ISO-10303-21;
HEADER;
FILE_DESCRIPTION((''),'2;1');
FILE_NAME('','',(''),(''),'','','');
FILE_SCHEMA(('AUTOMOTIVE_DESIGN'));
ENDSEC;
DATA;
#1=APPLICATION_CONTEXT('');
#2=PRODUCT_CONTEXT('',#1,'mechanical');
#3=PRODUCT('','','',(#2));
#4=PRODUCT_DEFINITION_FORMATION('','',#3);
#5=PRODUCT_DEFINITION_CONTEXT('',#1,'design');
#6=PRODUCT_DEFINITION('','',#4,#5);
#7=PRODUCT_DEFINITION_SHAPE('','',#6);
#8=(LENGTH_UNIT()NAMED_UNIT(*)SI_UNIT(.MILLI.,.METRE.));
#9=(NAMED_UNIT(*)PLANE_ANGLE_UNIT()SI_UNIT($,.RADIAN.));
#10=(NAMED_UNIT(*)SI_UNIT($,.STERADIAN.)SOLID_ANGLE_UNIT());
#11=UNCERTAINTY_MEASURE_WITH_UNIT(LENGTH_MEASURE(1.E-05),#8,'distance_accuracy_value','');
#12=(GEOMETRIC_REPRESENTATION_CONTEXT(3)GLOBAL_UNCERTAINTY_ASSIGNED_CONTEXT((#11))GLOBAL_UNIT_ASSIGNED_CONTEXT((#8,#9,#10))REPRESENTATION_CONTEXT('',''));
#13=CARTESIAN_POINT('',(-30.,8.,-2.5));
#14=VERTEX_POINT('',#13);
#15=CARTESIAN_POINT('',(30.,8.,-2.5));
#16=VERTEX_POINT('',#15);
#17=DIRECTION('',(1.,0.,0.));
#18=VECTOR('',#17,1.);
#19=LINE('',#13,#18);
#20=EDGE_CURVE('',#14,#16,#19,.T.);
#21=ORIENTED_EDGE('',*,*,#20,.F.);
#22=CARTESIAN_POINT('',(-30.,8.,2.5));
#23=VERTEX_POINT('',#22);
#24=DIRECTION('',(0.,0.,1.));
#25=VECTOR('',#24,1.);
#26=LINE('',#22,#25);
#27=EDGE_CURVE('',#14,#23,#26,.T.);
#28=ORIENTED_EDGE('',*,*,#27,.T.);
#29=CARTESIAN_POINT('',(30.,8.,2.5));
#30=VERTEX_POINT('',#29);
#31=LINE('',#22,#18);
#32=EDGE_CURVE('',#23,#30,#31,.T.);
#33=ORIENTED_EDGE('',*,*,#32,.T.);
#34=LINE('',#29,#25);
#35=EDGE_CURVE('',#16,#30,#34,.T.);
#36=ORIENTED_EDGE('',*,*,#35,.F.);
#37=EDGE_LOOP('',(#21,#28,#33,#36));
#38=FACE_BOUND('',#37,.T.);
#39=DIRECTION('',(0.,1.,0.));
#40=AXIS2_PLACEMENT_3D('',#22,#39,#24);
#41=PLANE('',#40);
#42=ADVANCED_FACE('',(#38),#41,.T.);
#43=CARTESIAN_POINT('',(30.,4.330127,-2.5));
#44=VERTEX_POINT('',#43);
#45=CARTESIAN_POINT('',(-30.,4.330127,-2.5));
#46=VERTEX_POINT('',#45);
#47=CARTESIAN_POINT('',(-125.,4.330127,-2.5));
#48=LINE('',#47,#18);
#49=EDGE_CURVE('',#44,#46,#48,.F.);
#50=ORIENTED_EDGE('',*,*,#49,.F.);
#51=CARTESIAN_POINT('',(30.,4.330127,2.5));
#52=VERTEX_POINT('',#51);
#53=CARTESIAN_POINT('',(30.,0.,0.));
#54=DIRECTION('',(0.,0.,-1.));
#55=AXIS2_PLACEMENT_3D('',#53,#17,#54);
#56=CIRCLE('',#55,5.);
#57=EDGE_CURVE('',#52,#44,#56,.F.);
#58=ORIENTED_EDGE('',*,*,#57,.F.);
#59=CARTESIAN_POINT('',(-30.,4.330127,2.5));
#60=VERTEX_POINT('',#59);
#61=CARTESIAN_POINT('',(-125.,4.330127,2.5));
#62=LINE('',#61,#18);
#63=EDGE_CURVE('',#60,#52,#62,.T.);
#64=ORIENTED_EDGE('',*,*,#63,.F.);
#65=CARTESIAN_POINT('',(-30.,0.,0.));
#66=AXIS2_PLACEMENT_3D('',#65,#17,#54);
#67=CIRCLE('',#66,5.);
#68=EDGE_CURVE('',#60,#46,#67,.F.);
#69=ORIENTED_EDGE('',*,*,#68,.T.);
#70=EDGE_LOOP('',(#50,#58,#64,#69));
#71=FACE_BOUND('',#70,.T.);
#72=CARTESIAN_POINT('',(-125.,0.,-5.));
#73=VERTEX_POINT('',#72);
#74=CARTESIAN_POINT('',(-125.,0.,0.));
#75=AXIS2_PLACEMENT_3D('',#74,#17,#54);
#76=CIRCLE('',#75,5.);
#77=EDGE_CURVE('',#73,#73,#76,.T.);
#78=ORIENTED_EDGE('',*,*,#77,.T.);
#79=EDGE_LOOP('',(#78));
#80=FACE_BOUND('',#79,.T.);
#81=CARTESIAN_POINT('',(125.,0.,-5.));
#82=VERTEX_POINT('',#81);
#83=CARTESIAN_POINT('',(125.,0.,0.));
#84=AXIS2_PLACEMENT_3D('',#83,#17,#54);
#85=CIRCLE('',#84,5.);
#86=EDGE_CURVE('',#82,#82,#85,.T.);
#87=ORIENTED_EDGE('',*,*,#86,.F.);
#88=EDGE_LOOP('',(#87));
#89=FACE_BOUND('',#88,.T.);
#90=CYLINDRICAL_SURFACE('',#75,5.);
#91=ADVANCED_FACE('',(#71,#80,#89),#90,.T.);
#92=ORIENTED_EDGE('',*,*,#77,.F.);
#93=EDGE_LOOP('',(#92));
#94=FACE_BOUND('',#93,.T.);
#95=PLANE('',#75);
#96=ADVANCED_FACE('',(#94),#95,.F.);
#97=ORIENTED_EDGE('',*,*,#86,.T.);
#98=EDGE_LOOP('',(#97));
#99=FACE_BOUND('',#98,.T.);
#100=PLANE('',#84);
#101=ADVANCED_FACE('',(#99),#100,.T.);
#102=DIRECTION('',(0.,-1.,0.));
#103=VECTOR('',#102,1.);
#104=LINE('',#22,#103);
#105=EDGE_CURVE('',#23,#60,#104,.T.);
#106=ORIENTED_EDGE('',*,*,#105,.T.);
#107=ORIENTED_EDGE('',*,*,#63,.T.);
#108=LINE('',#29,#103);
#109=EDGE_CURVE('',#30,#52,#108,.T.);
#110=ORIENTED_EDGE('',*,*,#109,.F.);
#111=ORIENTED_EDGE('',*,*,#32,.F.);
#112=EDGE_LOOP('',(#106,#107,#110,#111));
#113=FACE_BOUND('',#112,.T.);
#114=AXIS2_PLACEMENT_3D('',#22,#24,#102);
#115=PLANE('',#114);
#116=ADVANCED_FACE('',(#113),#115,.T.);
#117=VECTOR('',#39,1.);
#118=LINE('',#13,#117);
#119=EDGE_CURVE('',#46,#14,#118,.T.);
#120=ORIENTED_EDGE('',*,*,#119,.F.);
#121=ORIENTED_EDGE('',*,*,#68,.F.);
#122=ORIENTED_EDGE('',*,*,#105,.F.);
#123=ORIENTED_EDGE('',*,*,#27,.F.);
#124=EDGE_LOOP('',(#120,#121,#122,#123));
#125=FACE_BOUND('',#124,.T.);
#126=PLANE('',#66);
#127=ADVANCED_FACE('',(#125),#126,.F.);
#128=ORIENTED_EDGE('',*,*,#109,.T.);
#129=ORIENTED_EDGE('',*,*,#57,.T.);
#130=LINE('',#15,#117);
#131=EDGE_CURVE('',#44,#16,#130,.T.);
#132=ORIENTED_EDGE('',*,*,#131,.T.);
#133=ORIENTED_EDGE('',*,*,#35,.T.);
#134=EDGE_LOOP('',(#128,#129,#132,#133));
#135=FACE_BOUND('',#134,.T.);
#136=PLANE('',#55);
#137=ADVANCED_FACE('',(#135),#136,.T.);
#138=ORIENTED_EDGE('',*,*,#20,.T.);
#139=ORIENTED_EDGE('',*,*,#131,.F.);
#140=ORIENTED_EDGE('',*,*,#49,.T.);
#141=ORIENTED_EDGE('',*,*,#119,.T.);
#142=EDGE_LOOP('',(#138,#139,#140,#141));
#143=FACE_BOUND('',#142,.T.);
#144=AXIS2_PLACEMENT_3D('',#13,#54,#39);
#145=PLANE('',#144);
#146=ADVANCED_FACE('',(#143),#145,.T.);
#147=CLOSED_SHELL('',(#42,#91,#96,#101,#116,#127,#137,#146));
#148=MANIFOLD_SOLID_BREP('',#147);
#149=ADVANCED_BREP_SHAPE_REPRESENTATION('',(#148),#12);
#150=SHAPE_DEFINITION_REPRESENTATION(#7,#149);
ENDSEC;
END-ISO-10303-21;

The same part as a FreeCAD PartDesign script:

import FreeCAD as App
import Part
import Sketcher

V = App.Vector


def add_polygon(sketch, points):
    """Adds a closed chain of lines whose ends are joined by coincident constraints."""
    first, n = sketch.GeometryCount, len(points)
    for a, b in zip(points, points[1:] + points[:1]):
        sketch.addGeometry(Part.LineSegment(App.Vector(*a, 0), App.Vector(*b, 0)), False)
    for i in range(n):
        sketch.addConstraint(Sketcher.Constraint("Coincident", first + i, 2, first + (i + 1) % n, 1))

doc = App.newDocument("Part")
params = doc.addObject("Spreadsheet::Sheet", "Params")
for row, (alias, value) in enumerate([
    ("sketch1_diameter", "10 mm"),
    ("pad1_length", "125 mm"),
    ("pad1_length2", "125 mm"),
    ("sketch2_width", "8 mm"),
    ("sketch2_height", "5 mm"),
    ("pad2_length", "30 mm"),
    ("pad2_length2", "30 mm"),
], start=1):
    params.set(f"A{row}", alias)
    params.set(f"B{row}", "=" + value)
    params.setAlias(f"B{row}", alias)

body = doc.addObject("PartDesign::Body", "Body")

sketch1 = body.newObject("Sketcher::SketchObject", "Sketch")
sketch1.AttachmentSupport = (doc.getObject("YZ_Plane"), [""])
sketch1.MapMode = "FlatFace"
sketch1.addGeometry(Part.Circle(V(0, 0, 0), V(0, 0, 1), 5), False)
sketch1.addConstraint([
    Sketcher.Constraint("Coincident", 0, 3, -1, 1),
    Sketcher.Constraint("Diameter", 0, 10.0),
])
sketch1.setExpression("Constraints[1]", "Params.sketch1_diameter")
pad1 = body.newObject("PartDesign::Pad", "Pad")
pad1.Profile = sketch1
pad1.Type = "TwoLengths"
pad1.setExpression("Length", "Params.pad1_length")
pad1.setExpression("Length2", "Params.pad1_length2")

sketch2 = body.newObject("Sketcher::SketchObject", "Sketch001")
sketch2.AttachmentSupport = (doc.getObject("YZ_Plane"), [""])
sketch2.MapMode = "FlatFace"
add_polygon(sketch2, [(8, 2.5), (0, 2.5), (0, -2.5), (8, -2.5)])
sketch2.addConstraint([
    Sketcher.Constraint("Horizontal", 0),
    Sketcher.Constraint("Vertical", 1),
    Sketcher.Constraint("Horizontal", 2),
    Sketcher.Constraint("Vertical", 3),
    Sketcher.Constraint("Symmetric", 0, 2, 1, 2, -1, 1),
    Sketcher.Constraint("DistanceX", 0, 2, 0, 1, 8.0),
    Sketcher.Constraint("DistanceY", 1, 2, 1, 1, 5.0),
])
sketch2.setExpression("Constraints[9]", "Params.sketch2_width")
sketch2.setExpression("Constraints[10]", "Params.sketch2_height")
pad2 = body.newObject("PartDesign::Pad", "Pad001")
pad2.Profile = sketch2
pad2.Type = "TwoLengths"
pad2.setExpression("Length", "Params.pad2_length")
pad2.setExpression("Length2", "Params.pad2_length2")

doc.recompute()
